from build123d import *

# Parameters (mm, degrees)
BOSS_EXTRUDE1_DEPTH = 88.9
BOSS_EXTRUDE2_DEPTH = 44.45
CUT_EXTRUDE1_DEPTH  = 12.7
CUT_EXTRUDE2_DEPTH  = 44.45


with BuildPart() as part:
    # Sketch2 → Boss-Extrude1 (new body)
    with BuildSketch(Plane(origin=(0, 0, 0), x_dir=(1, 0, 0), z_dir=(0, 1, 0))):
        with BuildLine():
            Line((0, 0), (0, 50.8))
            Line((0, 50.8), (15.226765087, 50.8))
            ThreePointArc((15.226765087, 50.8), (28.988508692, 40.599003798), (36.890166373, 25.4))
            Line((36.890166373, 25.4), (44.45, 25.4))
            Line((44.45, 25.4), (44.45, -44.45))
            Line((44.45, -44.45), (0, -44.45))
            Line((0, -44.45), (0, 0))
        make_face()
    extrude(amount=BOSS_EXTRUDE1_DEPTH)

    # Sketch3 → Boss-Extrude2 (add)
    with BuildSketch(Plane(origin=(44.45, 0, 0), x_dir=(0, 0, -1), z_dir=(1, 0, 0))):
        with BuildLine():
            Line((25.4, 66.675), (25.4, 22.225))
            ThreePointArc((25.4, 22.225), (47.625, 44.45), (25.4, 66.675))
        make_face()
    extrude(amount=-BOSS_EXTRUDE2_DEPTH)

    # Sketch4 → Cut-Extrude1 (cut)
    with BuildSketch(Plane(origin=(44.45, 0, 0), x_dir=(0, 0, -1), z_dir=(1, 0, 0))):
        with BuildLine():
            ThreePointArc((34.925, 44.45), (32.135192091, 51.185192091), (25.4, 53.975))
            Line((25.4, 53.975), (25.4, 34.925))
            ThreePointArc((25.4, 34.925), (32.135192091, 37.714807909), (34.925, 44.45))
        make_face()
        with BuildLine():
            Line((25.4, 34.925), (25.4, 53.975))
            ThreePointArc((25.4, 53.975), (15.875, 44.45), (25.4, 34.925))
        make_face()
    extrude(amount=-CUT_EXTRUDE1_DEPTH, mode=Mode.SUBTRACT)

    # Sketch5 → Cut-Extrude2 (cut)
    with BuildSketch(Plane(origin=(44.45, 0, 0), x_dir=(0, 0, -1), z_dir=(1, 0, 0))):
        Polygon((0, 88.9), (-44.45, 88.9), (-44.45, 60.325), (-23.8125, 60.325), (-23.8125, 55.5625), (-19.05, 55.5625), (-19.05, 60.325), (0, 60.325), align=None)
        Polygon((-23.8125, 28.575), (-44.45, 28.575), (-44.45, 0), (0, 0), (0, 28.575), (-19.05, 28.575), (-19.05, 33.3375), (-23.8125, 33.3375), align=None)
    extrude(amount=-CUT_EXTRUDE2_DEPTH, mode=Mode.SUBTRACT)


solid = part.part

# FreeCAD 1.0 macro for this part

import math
import FreeCAD as App
import Part
import Sketcher

V = App.Vector
Q = App.Units.Quantity

doc = App.newDocument("Part")
body = doc.addObject("PartDesign::Body", "Body")

sketch1 = doc.addObject("Sketcher::SketchObject", "Sketch")
body.addObject(sketch1)
sketch1.AttachmentSupport = (doc.XZ_Plane, [""])
sketch1.MapMode = "FlatFace"
sketch1.addGeometry(Part.LineSegment(V(15.226765, -50.8, 0), V(0, -50.8, 0)), False)
sketch1.addGeometry(Part.LineSegment(V(0, -50.8, 0), V(0, 44.45, 0)), False)
sketch1.addGeometry(Part.LineSegment(V(0, 44.45, 0), V(44.45, 44.45, 0)), False)
sketch1.addGeometry(Part.LineSegment(V(44.45, 44.45, 0), V(44.45, -25.4, 0)), False)
sketch1.addGeometry(Part.LineSegment(V(44.45, -25.4, 0), V(36.890166, -25.4, 0)), False)
sketch1.addGeometry(Part.ArcOfCircle(Part.Circle(V(0, -15.875, 0), V(0, 0, 1), 38.1), math.radians(-66.443536), math.radians(-14.477512)), False)
sketch1.addConstraint(Sketcher.Constraint("Coincident", 0, 2, 1, 1))
sketch1.addConstraint(Sketcher.Constraint("Coincident", 1, 2, 2, 1))
sketch1.addConstraint(Sketcher.Constraint("Coincident", 2, 2, 3, 1))
sketch1.addConstraint(Sketcher.Constraint("Coincident", 3, 2, 4, 1))
sketch1.addConstraint(Sketcher.Constraint("Coincident", 4, 2, 5, 2))
sketch1.addConstraint(Sketcher.Constraint("Coincident", 5, 1, 0, 1))
sketch1.addConstraint(Sketcher.Constraint("Horizontal", 0))
sketch1.addConstraint(Sketcher.Constraint("Vertical", 1))
sketch1.addConstraint(Sketcher.Constraint("Horizontal", 2))
sketch1.addConstraint(Sketcher.Constraint("Vertical", 3))
sketch1.addConstraint(Sketcher.Constraint("Horizontal", 4))
sketch1.addConstraint(Sketcher.Constraint("PointOnObject", 5, 3, -2))
sketch1.addConstraint(Sketcher.Constraint("PointOnObject", 0, 2, -2))
sketch1.addConstraint(Sketcher.Constraint("Radius", 5, Q("1.5 in")))
sketch1.addConstraint(Sketcher.Constraint("DistanceY", 0, 2, -1, 1, Q("2 in")))
sketch1.addConstraint(Sketcher.Constraint("DistanceY", 3, 2, -1, 1, Q("1 in")))
sketch1.addConstraint(Sketcher.Constraint("DistanceX", 2, 1, 2, 2, Q("1.75 in")))
sketch1.addConstraint(Sketcher.Constraint("DistanceY", 1, 1, 1, 2, Q("3.75 in")))
sketch1.addConstraint(Sketcher.Constraint("DistanceY", 5, 3, -1, 1, Q("0.625 in")))
pad1 = doc.addObject("PartDesign::Pad", "Pad")
body.addObject(pad1)
pad1.Profile = sketch1
pad1.Length = Q("3.5 in")
pad1.Reversed = True

sketch2 = doc.addObject("Sketcher::SketchObject", "Sketch001")
body.addObject(sketch2)
sketch2.AttachmentSupport = (doc.YZ_Plane, [""])
sketch2.MapMode = "FlatFace"
sketch2.AttachmentOffset = App.Placement(V(0, 0, 1.75 * 25.4), App.Rotation())
sketch2.addGeometry(Part.LineSegment(V(66.675, -25.4, 0), V(22.225, -25.4, 0)), False)
sketch2.addGeometry(Part.ArcOfCircle(Part.Circle(V(44.45, -25.4, 0), V(0, 0, 1), 22.225), math.radians(180), math.radians(360)), False)
sketch2.addConstraint(Sketcher.Constraint("Coincident", 0, 1, 1, 2))
sketch2.addConstraint(Sketcher.Constraint("Coincident", 1, 1, 0, 2))
sketch2.addConstraint(Sketcher.Constraint("Horizontal", 0))
sketch2.addConstraint(Sketcher.Constraint("Horizontal", 1, 3, 0, 1))
sketch2.addConstraint(Sketcher.Constraint("DistanceY", 1, 3, -1, 1, Q("1 in")))
sketch2.addConstraint(Sketcher.Constraint("Radius", 1, Q("0.875 in")))
sketch2.addConstraint(Sketcher.Constraint("DistanceX", -1, 1, 1, 3, Q("1.75 in")))
pad2 = doc.addObject("PartDesign::Pad", "Pad001")
body.addObject(pad2)
pad2.Profile = sketch2
pad2.Length = Q("1.75 in")
pad2.Reversed = True

sketch3 = doc.addObject("Sketcher::SketchObject", "Sketch002")
body.addObject(sketch3)
sketch3.AttachmentSupport = (doc.YZ_Plane, [""])
sketch3.MapMode = "FlatFace"
sketch3.AttachmentOffset = App.Placement(V(0, 0, 1.75 * 25.4), App.Rotation())
sketch3.addGeometry(Part.ArcOfCircle(Part.Circle(V(44.45, -25.4, 0), V(0, 0, 1), 9.525), math.radians(-90), math.radians(0)), False)
sketch3.addGeometry(Part.ArcOfCircle(Part.Circle(V(44.45, -25.4, 0), V(0, 0, 1), 9.525), math.radians(0), math.radians(180)), False)
sketch3.addGeometry(Part.ArcOfCircle(Part.Circle(V(44.45, -25.4, 0), V(0, 0, 1), 9.525), math.radians(180), math.radians(270)), False)
sketch3.addConstraint(Sketcher.Constraint("Tangent", 0, 2, 1, 1))
sketch3.addConstraint(Sketcher.Constraint("Tangent", 1, 2, 2, 1))
sketch3.addConstraint(Sketcher.Constraint("Tangent", 2, 2, 0, 1))
sketch3.addConstraint(Sketcher.Constraint("Horizontal", 2, 3, 0, 2))
sketch3.addConstraint(Sketcher.Constraint("Horizontal", 0, 2, 1, 2))
sketch3.addConstraint(Sketcher.Constraint("Vertical", 1, 3, 2, 2))
sketch3.addConstraint(Sketcher.Constraint("DistanceY", 0, 3, -1, 1, Q("1 in")))
sketch3.addConstraint(Sketcher.Constraint("Radius", 0, Q("0.375 in")))
sketch3.addConstraint(Sketcher.Constraint("DistanceX", -1, 1, 0, 3, Q("1.75 in")))
pocket1 = doc.addObject("PartDesign::Pocket", "Pocket")
body.addObject(pocket1)
pocket1.Profile = sketch3
pocket1.Length = Q("0.5 in")

sketch4 = doc.addObject("Sketcher::SketchObject", "Sketch003")
body.addObject(sketch4)
sketch4.AttachmentSupport = (doc.YZ_Plane, [""])
sketch4.MapMode = "FlatFace"
sketch4.AttachmentOffset = App.Placement(V(0, 0, 1.75 * 25.4), App.Rotation())
sketch4.addGeometry(Part.LineSegment(V(88.9, 0, 0), V(88.9, 44.45, 0)), False)
sketch4.addGeometry(Part.LineSegment(V(88.9, 44.45, 0), V(60.325, 44.45, 0)), False)
sketch4.addGeometry(Part.LineSegment(V(60.325, 44.45, 0), V(60.325, 23.8125, 0)), False)
sketch4.addGeometry(Part.LineSegment(V(60.325, 23.8125, 0), V(55.5625, 23.8125, 0)), False)
sketch4.addGeometry(Part.LineSegment(V(55.5625, 23.8125, 0), V(55.5625, 19.05, 0)), False)
sketch4.addGeometry(Part.LineSegment(V(55.5625, 19.05, 0), V(60.325, 19.05, 0)), False)
sketch4.addGeometry(Part.LineSegment(V(60.325, 19.05, 0), V(60.325, 0, 0)), False)
sketch4.addGeometry(Part.LineSegment(V(60.325, 0, 0), V(88.9, 0, 0)), False)
sketch4.addGeometry(Part.LineSegment(V(28.575, 23.8125, 0), V(28.575, 44.45, 0)), False)
sketch4.addGeometry(Part.LineSegment(V(28.575, 44.45, 0), V(0, 44.45, 0)), False)
sketch4.addGeometry(Part.LineSegment(V(0, 44.45, 0), V(0, 0, 0)), False)
sketch4.addGeometry(Part.LineSegment(V(0, 0, 0), V(28.575, 0, 0)), False)
sketch4.addGeometry(Part.LineSegment(V(28.575, 0, 0), V(28.575, 19.05, 0)), False)
sketch4.addGeometry(Part.LineSegment(V(28.575, 19.05, 0), V(33.3375, 19.05, 0)), False)
sketch4.addGeometry(Part.LineSegment(V(33.3375, 19.05, 0), V(33.3375, 23.8125, 0)), False)
sketch4.addGeometry(Part.LineSegment(V(33.3375, 23.8125, 0), V(28.575, 23.8125, 0)), False)
sketch4.addConstraint(Sketcher.Constraint("Coincident", 0, 2, 1, 1))
sketch4.addConstraint(Sketcher.Constraint("Coincident", 1, 2, 2, 1))
sketch4.addConstraint(Sketcher.Constraint("Coincident", 2, 2, 3, 1))
sketch4.addConstraint(Sketcher.Constraint("Coincident", 3, 2, 4, 1))
sketch4.addConstraint(Sketcher.Constraint("Coincident", 4, 2, 5, 1))
sketch4.addConstraint(Sketcher.Constraint("Coincident", 5, 2, 6, 1))
sketch4.addConstraint(Sketcher.Constraint("Coincident", 6, 2, 7, 1))
sketch4.addConstraint(Sketcher.Constraint("Coincident", 7, 2, 0, 1))
sketch4.addConstraint(Sketcher.Constraint("Coincident", 8, 2, 9, 1))
sketch4.addConstraint(Sketcher.Constraint("Coincident", 9, 2, 10, 1))
sketch4.addConstraint(Sketcher.Constraint("Coincident", 10, 2, 11, 1))
sketch4.addConstraint(Sketcher.Constraint("Coincident", 11, 2, 12, 1))
sketch4.addConstraint(Sketcher.Constraint("Coincident", 12, 2, 13, 1))
sketch4.addConstraint(Sketcher.Constraint("Coincident", 13, 2, 14, 1))
sketch4.addConstraint(Sketcher.Constraint("Coincident", 14, 2, 15, 1))
sketch4.addConstraint(Sketcher.Constraint("Coincident", 15, 2, 8, 1))
sketch4.addConstraint(Sketcher.Constraint("Vertical", 0))
sketch4.addConstraint(Sketcher.Constraint("Horizontal", 1))
sketch4.addConstraint(Sketcher.Constraint("Vertical", 2))
sketch4.addConstraint(Sketcher.Constraint("Horizontal", 3))
sketch4.addConstraint(Sketcher.Constraint("Vertical", 4))
sketch4.addConstraint(Sketcher.Constraint("Horizontal", 5))
sketch4.addConstraint(Sketcher.Constraint("Vertical", 6))
sketch4.addConstraint(Sketcher.Constraint("Horizontal", 7))
sketch4.addConstraint(Sketcher.Constraint("Vertical", 8))
sketch4.addConstraint(Sketcher.Constraint("Horizontal", 9))
sketch4.addConstraint(Sketcher.Constraint("Vertical", 10))
sketch4.addConstraint(Sketcher.Constraint("Horizontal", 11))
sketch4.addConstraint(Sketcher.Constraint("Vertical", 12))
sketch4.addConstraint(Sketcher.Constraint("Horizontal", 13))
sketch4.addConstraint(Sketcher.Constraint("Vertical", 14))
sketch4.addConstraint(Sketcher.Constraint("Horizontal", 15))
sketch4.addConstraint(Sketcher.Constraint("Coincident", 10, 2, -1, 1))
sketch4.addConstraint(Sketcher.Constraint("PointOnObject", 6, 2, -1))
sketch4.addConstraint(Sketcher.Constraint("Horizontal", 1, 2, 8, 2))
sketch4.addConstraint(Sketcher.Constraint("Horizontal", 5, 2, 12, 2))
sketch4.addConstraint(Sketcher.Constraint("Horizontal", 3, 2, 14, 2))
sketch4.addConstraint(Sketcher.Constraint("Vertical", 2, 2, 5, 2))
sketch4.addConstraint(Sketcher.Constraint("Vertical", 8, 2, 11, 2))
sketch4.addConstraint(Sketcher.Constraint("Equal", 7, 9))
sketch4.addConstraint(Sketcher.Constraint("Equal", 5, 13))
sketch4.addConstraint(Sketcher.Constraint("Equal", 15, 4))
sketch4.addConstraint(Sketcher.Constraint("DistanceY", 4, 2, 1, 2, Q("1 in")))
sketch4.addConstraint(Sketcher.Constraint("DistanceY", 0, 1, 0, 2, Q("1.75 in")))
sketch4.addConstraint(Sketcher.Constraint("DistanceX", -1, 1, 0, 2, Q("3.5 in")))
sketch4.addConstraint(Sketcher.Constraint("DistanceX", 1, 2, 1, 1, Q("1.125 in")))
sketch4.addConstraint(Sketcher.Constraint("DistanceX", 3, 2, 3, 1, Q("0.1875 in")))
pocket2 = doc.addObject("PartDesign::Pocket", "Pocket001")
body.addObject(pocket2)
pocket2.Profile = sketch4
pocket2.Length = Q("1.75 in")

doc.recompute()
